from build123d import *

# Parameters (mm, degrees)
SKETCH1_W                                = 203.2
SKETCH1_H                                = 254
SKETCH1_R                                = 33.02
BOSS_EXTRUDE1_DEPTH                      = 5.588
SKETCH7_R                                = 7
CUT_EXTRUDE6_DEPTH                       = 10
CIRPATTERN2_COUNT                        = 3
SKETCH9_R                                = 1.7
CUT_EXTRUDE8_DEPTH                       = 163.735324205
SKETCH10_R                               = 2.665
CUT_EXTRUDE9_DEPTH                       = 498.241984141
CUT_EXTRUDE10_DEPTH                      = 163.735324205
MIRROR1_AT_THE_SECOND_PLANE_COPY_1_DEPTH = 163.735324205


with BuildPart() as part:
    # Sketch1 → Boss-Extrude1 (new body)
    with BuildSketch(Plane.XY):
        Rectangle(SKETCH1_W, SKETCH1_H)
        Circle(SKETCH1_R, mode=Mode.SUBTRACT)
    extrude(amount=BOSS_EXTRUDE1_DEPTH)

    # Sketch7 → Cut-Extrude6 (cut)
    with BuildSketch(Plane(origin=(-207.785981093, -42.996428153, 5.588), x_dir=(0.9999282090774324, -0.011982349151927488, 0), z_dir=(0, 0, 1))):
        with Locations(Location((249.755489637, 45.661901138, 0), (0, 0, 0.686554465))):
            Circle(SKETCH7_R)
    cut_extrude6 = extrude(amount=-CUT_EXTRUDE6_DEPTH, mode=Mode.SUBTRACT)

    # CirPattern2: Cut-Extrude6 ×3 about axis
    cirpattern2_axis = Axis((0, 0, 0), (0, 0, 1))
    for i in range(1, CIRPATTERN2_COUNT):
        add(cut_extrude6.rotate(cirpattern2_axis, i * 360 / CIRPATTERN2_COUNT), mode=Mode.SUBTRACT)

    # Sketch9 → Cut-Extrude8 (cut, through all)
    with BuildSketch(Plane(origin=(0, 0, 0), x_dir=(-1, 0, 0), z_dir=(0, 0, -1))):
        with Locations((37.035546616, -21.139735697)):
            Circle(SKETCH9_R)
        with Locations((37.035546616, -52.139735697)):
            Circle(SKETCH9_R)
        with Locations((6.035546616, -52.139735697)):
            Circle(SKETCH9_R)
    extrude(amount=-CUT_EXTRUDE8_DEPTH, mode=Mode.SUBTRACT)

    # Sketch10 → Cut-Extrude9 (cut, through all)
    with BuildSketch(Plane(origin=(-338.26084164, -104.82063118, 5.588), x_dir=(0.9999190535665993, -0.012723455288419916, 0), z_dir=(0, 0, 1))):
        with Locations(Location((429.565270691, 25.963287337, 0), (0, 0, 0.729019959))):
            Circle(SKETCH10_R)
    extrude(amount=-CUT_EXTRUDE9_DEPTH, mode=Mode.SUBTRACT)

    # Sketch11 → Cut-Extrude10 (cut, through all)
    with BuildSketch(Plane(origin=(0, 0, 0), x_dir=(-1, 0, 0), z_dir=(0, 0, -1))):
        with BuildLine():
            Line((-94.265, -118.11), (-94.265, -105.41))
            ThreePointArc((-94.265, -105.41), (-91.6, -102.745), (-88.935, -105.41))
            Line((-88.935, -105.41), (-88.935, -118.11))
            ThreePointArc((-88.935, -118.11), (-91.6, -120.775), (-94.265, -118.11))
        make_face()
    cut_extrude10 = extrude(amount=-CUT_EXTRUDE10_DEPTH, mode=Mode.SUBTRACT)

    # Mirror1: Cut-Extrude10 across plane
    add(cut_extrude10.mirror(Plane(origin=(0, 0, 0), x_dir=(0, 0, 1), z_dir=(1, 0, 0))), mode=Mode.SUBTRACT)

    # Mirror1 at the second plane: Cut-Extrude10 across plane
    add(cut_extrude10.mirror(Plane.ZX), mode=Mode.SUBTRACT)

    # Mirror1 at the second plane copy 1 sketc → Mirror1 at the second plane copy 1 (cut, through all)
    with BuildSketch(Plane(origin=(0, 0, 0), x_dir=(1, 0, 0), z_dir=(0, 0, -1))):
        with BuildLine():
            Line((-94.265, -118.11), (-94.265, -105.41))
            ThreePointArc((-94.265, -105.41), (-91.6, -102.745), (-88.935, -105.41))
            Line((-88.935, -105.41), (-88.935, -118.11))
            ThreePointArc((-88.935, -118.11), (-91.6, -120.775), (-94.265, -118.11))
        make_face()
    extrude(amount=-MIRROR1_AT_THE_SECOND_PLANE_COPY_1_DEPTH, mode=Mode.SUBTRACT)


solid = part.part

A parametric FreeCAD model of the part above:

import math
import FreeCAD as App
import Part
import Sketcher

V = App.Vector
Q = App.Units.Quantity

doc = App.newDocument("Part")
body = doc.addObject("PartDesign::Body", "Body")

# Sketch on XY plane
sketch1 = body.newObject("Sketcher::SketchObject", "Sketch")
sketch1.AttachmentSupport = (doc.getObject("XY_Plane"), [""])
sketch1.MapMode = "FlatFace"
sketch1.addGeometry([
    Part.LineSegment(V(-102, 127, 0), V(-102, -127, 0)),  # 0
    Part.LineSegment(V(-102, -127, 0), V(102, -127, 0)),  # 1
    Part.LineSegment(V(102, -127, 0), V(102, 127, 0)),  # 2
    Part.LineSegment(V(102, 127, 0), V(-102, 127, 0)),  # 3
    Part.Circle(V(0, 0, 0), V(0, 0, 1), 33),  # 4
], False)
sketch1.addConstraint([
    Sketcher.Constraint("Coincident", 0, 2, 1, 1),
    Sketcher.Constraint("Coincident", 1, 2, 2, 1),
    Sketcher.Constraint("Coincident", 2, 2, 3, 1),
    Sketcher.Constraint("Coincident", 3, 2, 0, 1),
    Sketcher.Constraint("Vertical", 0),
    Sketcher.Constraint("Horizontal", 1),
    Sketcher.Constraint("Vertical", 2),
    Sketcher.Constraint("Horizontal", 3),
    Sketcher.Constraint("Coincident", 4, 3, -1, 1),
    Sketcher.Constraint("Symmetric", 0, 2, 2, 2, -1, 1),
    Sketcher.Constraint("Diameter", 4, Q("2.6 in")),
    Sketcher.Constraint("DistanceX", 1, 1, 1, 2, Q("8 in")),
    Sketcher.Constraint("DistanceY", 0, 2, 0, 1, Q("10 in")),
])
pad1 = body.newObject("PartDesign::Pad", "Pad")
pad1.Profile = sketch1
pad1.Length = Q("0.22 in")

# Sketch on XY plane
sketch2 = body.newObject("Sketcher::SketchObject", "Sketch001")
sketch2.AttachmentSupport = (doc.getObject("XY_Plane"), [""])
sketch2.MapMode = "FlatFace"
sketch2.AttachmentOffset = App.Placement(V(0, 0, 0.22 * 25.4), App.Rotation())
sketch2.addGeometry(Part.Circle(V(42, 0, 0), V(0, 0, 1), 7), False)
sketch2.addConstraint([
    Sketcher.Constraint("Diameter", 0, 14.0),
    Sketcher.Constraint("DistanceX", -1, 1, 0, 3, 42.498715),
    Sketcher.Constraint("DistanceY", 0, 3, -1, 1, 0.330463),
])
pocket1 = body.newObject("PartDesign::Pocket", "Pocket")
pocket1.Profile = sketch2
pocket1.Length = 10
doc.recompute()

polarpattern = body.newObject("PartDesign::PolarPattern", "PolarPattern")
polarpattern.Originals = [pocket1]
polarpattern.Axis = (doc.getObject("Z_Axis"), [""])
polarpattern.Angle = 360
polarpattern.Occurrences = 3
body.Tip = polarpattern

# Sketch on XY plane
sketch3 = body.newObject("Sketcher::SketchObject", "Sketch002")
sketch3.AttachmentSupport = (doc.getObject("XY_Plane"), [""])
sketch3.MapMode = "FlatFace"
sketch3.addGeometry([
    Part.Circle(V(-37, -21.1, 0), V(0, 0, 1), 1.7),
    Part.Circle(V(-37, -52.1, 0), V(0, 0, 1), 1.7),
    Part.Circle(V(-6, -52.1, 0), V(0, 0, 1), 1.7),
], False)
sketch3.addConstraint([
    Sketcher.Constraint("Equal", 0, 1),
    Sketcher.Constraint("Equal", 1, 2),
    Sketcher.Constraint("Horizontal", 1, 3, 2, 3),
    Sketcher.Constraint("Vertical", 0, 3, 1, 3),
    Sketcher.Constraint("Diameter", 0, 3.4),
    Sketcher.Constraint("DistanceY", 1, 3, 0, 3, 31.0),
    Sketcher.Constraint("DistanceX", 1, 3, 2, 3, 31.0),
    Sketcher.Constraint("DistanceX", 0, 3, -1, 1, 37.035547),
    Sketcher.Constraint("DistanceY", 0, 3, -1, 1, 21.139736),
])
pocket2 = body.newObject("PartDesign::Pocket", "Pocket001")
pocket2.Profile = sketch3
pocket2.Type = "ThroughAll"
pocket2.Reversed = True

# Sketch on XY plane
sketch4 = body.newObject("Sketcher::SketchObject", "Sketch003")
sketch4.AttachmentSupport = (doc.getObject("XY_Plane"), [""])
sketch4.MapMode = "FlatFace"
sketch4.AttachmentOffset = App.Placement(V(0, 0, 0.22 * 25.4), App.Rotation())
sketch4.addGeometry(Part.Circle(V(91.6, -84.3, 0), V(0, 0, 1), 2.7), False)
sketch4.addConstraint([
    Sketcher.Constraint("Diameter", 0, 5.33),
    Sketcher.Constraint("DistanceX", -1, 1, 0, 3, 91.6),
    Sketcher.Constraint("DistanceY", 0, 3, -1, 1, 84.325),
])
pocket3 = body.newObject("PartDesign::Pocket", "Pocket002")
pocket3.Profile = sketch4
pocket3.Type = "ThroughAll"

# Sketch on XY plane
sketch5 = body.newObject("Sketcher::SketchObject", "Sketch004")
sketch5.AttachmentSupport = (doc.getObject("XY_Plane"), [""])
sketch5.MapMode = "FlatFace"
sketch5.addGeometry([
    Part.LineSegment(V(94.3, -105.4, 0), V(94.3, -118.1, 0)),
    Part.ArcOfCircle(Part.Circle(V(91.6, -118.1, 0), V(0, 0, 1), 2.7), math.radians(180), math.radians(360)),
    Part.LineSegment(V(88.9, -118.1, 0), V(88.9, -105.4, 0)),
    Part.ArcOfCircle(Part.Circle(V(91.6, -105.4, 0), V(0, 0, 1), 2.7), math.radians(0), math.radians(180)),
], False)
sketch5.addConstraint([
    Sketcher.Constraint("Tangent", 0, 2, 1, 2),
    Sketcher.Constraint("Tangent", 1, 1, 2, 1),
    Sketcher.Constraint("Tangent", 2, 2, 3, 2),
    Sketcher.Constraint("Tangent", 3, 1, 0, 1),
    Sketcher.Constraint("Vertical", 0),
    Sketcher.Constraint("Vertical", 2),
    Sketcher.Constraint("DistanceY", 0, 2, 0, 1, Q("0.5 in")),
    Sketcher.Constraint("DistanceY", 1, 3, -1, 1, Q("4.65 in")),
    Sketcher.Constraint("Radius", 1, 2.665),
    Sketcher.Constraint("DistanceX", -1, 1, 1, 3, 91.6),
])
pocket4 = body.newObject("PartDesign::Pocket", "Pocket003")
pocket4.Profile = sketch5
pocket4.Type = "ThroughAll"
pocket4.Reversed = True
doc.recompute()

mirrored = body.newObject("PartDesign::Mirrored", "Mirrored")
mirrored.Originals = [pocket4]
mirrored.MirrorPlane = (doc.getObject("YZ_Plane"), [""])
body.Tip = mirrored
doc.recompute()

mirrored2 = body.newObject("PartDesign::Mirrored", "Mirrored001")
mirrored2.Originals = [pocket4]
mirrored2.MirrorPlane = (doc.getObject("XZ_Plane"), [""])
body.Tip = mirrored2

# Sketch on XY plane
sketch6 = body.newObject("Sketcher::SketchObject", "Sketch005")
sketch6.AttachmentSupport = (doc.getObject("XY_Plane"), [""])
sketch6.MapMode = "FlatFace"
sketch6.addGeometry([
    Part.LineSegment(V(-94.3, 105.4, 0), V(-94.3, 118.1, 0)),
    Part.ArcOfCircle(Part.Circle(V(-91.6, 118.1, 0), V(0, 0, 1), 2.7), math.radians(0), math.radians(180)),
    Part.LineSegment(V(-88.9, 118.1, 0), V(-88.9, 105.4, 0)),
    Part.ArcOfCircle(Part.Circle(V(-91.6, 105.4, 0), V(0, 0, 1), 2.7), math.radians(180), math.radians(360)),
], False)
sketch6.addConstraint([
    Sketcher.Constraint("Tangent", 0, 2, 1, 2),
    Sketcher.Constraint("Tangent", 1, 1, 2, 1),
    Sketcher.Constraint("Tangent", 2, 2, 3, 2),
    Sketcher.Constraint("Tangent", 3, 1, 0, 1),
    Sketcher.Constraint("Vertical", 0),
    Sketcher.Constraint("Vertical", 2),
    Sketcher.Constraint("DistanceY", 0, 1, 0, 2, Q("0.5 in")),
    Sketcher.Constraint("DistanceY", -1, 1, 1, 3, Q("4.65 in")),
    Sketcher.Constraint("Radius", 1, 2.665),
    Sketcher.Constraint("DistanceX", 1, 3, -1, 1, 91.6),
])
pocket5 = body.newObject("PartDesign::Pocket", "Pocket004")
pocket5.Profile = sketch6
pocket5.Type = "ThroughAll"
pocket5.Reversed = True

doc.recompute()
